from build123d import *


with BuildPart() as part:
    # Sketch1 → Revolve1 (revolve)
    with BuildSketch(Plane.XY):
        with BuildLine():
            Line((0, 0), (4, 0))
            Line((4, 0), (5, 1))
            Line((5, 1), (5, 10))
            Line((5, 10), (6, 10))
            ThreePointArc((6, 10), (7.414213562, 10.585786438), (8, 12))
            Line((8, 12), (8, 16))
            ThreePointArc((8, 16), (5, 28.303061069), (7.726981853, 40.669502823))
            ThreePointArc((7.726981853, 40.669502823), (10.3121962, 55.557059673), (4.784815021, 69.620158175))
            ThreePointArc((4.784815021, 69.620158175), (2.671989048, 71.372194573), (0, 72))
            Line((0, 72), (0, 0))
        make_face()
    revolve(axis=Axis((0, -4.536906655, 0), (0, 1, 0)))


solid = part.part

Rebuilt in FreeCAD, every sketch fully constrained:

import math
import FreeCAD as App
import Part
import Sketcher
Q = App.Units.Quantity

doc = App.newDocument("Part")
body = doc.addObject("PartDesign::Body", "Body")

sketch1 = body.newObject("Sketcher::SketchObject", "Sketch")
sketch1.AttachmentSupport = (doc.getObject("XY_Plane"), [""])
sketch1.MapMode = "FlatFace"
sketch1.addGeometry(Part.LineSegment(App.Vector(0, 0, 0), App.Vector(4, 0, 0)), False)
sketch1.addGeometry(Part.LineSegment(App.Vector(4, 0, 0), App.Vector(5, 1, 0)), False)
sketch1.addGeometry(Part.LineSegment(App.Vector(5, 1, 0), App.Vector(5, 10, 0)), False)
sketch1.addGeometry(Part.LineSegment(App.Vector(5, 10, 0), App.Vector(6, 10, 0)), False)
sketch1.addGeometry(Part.ArcOfCircle(Part.Circle(App.Vector(6, 12, 0), App.Vector(0, 0, 1), 2), math.radians(-90), math.radians(0)), False)
sketch1.addGeometry(Part.LineSegment(App.Vector(8, 12, 0), App.Vector(8, 16, 0)), False)
sketch1.addGeometry(Part.ArcOfCircle(Part.Circle(App.Vector(32.998285, 28.612919, 0), App.Vector(0, 0, 1), 28), math.radians(154.494846), math.radians(206.77329)), False)
sketch1.addGeometry(Part.ArcOfCircle(Part.Circle(App.Vector(-17.544322, 52.726087, 0), App.Vector(0, 0, 1), 28), math.radians(-25.505154), math.radians(37.110899)), False)
sketch1.addGeometry(Part.ArcOfCircle(Part.Circle(App.Vector(0, 66, 0), App.Vector(0, 0, 1), 6), math.radians(37.110899), math.radians(90)), False)
sketch1.addGeometry(Part.LineSegment(App.Vector(0, 72, 0), App.Vector(0, 0, 0)), False)
sketch1.addConstraint(Sketcher.Constraint("Coincident", 0, 2, 1, 1))
sketch1.addConstraint(Sketcher.Constraint("Coincident", 1, 2, 2, 1))
sketch1.addConstraint(Sketcher.Constraint("Coincident", 2, 2, 3, 1))
sketch1.addConstraint(Sketcher.Constraint("Tangent", 3, 2, 4, 1))
sketch1.addConstraint(Sketcher.Constraint("Tangent", 4, 2, 5, 1))
sketch1.addConstraint(Sketcher.Constraint("Coincident", 5, 2, 6, 2))
sketch1.addConstraint(Sketcher.Constraint("Tangent", 6, 1, 7, 1))
sketch1.addConstraint(Sketcher.Constraint("Tangent", 7, 2, 8, 1))
sketch1.addConstraint(Sketcher.Constraint("Coincident", 8, 2, 9, 1))
sketch1.addConstraint(Sketcher.Constraint("Coincident", 9, 2, 0, 1))
sketch1.addConstraint(Sketcher.Constraint("Horizontal", 0))
sketch1.addConstraint(Sketcher.Constraint("Vertical", 2))
sketch1.addConstraint(Sketcher.Constraint("Horizontal", 3))
sketch1.addConstraint(Sketcher.Constraint("Vertical", 5))
sketch1.addConstraint(Sketcher.Constraint("Vertical", 9))
sketch1.addConstraint(Sketcher.Constraint("Coincident", 9, 2, -1, 1))
sketch1.addConstraint(Sketcher.Constraint("Equal", 6, 7))
sketch1.addConstraint(Sketcher.Constraint("PointOnObject", 8, 3, -2))
sketch1.addConstraint(Sketcher.Constraint("Equal", 0, 5))
sketch1.addConstraint(Sketcher.Constraint("Radius", 4, 2.0))
sketch1.addConstraint(Sketcher.Constraint("Radius", 6, 28.0))
sketch1.addConstraint(Sketcher.Constraint("Radius", 8, 6.0))
sketch1.addConstraint(Sketcher.Constraint("DistanceX", 0, 1, 0, 2, 4.0))
sketch1.addConstraint(Sketcher.Constraint("DistanceX", 3, 1, 3, 2, 1.0))
sketch1.addConstraint(Sketcher.Constraint("DistanceY", 2, 1, 2, 2, 9.0))
sketch1.addConstraint(Sketcher.Constraint("DistanceY", 9, 2, 9, 1, 72.0))
sketch1.addConstraint(Sketcher.Constraint("Angle", 1, Q("45 deg")))
sketch1.addConstraint(Sketcher.Constraint("DistanceX", -1, 1, 4, 3, 6.0))
sketch1.addConstraint(Sketcher.Constraint("DistanceY", -1, 1, 6, 3, 28.612919))
revolution = body.newObject("PartDesign::Revolution", "Revolution")
revolution.Profile = sketch1
revolution.ReferenceAxis = (sketch1, ["V_Axis"])
revolution.Angle = 360

doc.recompute()
